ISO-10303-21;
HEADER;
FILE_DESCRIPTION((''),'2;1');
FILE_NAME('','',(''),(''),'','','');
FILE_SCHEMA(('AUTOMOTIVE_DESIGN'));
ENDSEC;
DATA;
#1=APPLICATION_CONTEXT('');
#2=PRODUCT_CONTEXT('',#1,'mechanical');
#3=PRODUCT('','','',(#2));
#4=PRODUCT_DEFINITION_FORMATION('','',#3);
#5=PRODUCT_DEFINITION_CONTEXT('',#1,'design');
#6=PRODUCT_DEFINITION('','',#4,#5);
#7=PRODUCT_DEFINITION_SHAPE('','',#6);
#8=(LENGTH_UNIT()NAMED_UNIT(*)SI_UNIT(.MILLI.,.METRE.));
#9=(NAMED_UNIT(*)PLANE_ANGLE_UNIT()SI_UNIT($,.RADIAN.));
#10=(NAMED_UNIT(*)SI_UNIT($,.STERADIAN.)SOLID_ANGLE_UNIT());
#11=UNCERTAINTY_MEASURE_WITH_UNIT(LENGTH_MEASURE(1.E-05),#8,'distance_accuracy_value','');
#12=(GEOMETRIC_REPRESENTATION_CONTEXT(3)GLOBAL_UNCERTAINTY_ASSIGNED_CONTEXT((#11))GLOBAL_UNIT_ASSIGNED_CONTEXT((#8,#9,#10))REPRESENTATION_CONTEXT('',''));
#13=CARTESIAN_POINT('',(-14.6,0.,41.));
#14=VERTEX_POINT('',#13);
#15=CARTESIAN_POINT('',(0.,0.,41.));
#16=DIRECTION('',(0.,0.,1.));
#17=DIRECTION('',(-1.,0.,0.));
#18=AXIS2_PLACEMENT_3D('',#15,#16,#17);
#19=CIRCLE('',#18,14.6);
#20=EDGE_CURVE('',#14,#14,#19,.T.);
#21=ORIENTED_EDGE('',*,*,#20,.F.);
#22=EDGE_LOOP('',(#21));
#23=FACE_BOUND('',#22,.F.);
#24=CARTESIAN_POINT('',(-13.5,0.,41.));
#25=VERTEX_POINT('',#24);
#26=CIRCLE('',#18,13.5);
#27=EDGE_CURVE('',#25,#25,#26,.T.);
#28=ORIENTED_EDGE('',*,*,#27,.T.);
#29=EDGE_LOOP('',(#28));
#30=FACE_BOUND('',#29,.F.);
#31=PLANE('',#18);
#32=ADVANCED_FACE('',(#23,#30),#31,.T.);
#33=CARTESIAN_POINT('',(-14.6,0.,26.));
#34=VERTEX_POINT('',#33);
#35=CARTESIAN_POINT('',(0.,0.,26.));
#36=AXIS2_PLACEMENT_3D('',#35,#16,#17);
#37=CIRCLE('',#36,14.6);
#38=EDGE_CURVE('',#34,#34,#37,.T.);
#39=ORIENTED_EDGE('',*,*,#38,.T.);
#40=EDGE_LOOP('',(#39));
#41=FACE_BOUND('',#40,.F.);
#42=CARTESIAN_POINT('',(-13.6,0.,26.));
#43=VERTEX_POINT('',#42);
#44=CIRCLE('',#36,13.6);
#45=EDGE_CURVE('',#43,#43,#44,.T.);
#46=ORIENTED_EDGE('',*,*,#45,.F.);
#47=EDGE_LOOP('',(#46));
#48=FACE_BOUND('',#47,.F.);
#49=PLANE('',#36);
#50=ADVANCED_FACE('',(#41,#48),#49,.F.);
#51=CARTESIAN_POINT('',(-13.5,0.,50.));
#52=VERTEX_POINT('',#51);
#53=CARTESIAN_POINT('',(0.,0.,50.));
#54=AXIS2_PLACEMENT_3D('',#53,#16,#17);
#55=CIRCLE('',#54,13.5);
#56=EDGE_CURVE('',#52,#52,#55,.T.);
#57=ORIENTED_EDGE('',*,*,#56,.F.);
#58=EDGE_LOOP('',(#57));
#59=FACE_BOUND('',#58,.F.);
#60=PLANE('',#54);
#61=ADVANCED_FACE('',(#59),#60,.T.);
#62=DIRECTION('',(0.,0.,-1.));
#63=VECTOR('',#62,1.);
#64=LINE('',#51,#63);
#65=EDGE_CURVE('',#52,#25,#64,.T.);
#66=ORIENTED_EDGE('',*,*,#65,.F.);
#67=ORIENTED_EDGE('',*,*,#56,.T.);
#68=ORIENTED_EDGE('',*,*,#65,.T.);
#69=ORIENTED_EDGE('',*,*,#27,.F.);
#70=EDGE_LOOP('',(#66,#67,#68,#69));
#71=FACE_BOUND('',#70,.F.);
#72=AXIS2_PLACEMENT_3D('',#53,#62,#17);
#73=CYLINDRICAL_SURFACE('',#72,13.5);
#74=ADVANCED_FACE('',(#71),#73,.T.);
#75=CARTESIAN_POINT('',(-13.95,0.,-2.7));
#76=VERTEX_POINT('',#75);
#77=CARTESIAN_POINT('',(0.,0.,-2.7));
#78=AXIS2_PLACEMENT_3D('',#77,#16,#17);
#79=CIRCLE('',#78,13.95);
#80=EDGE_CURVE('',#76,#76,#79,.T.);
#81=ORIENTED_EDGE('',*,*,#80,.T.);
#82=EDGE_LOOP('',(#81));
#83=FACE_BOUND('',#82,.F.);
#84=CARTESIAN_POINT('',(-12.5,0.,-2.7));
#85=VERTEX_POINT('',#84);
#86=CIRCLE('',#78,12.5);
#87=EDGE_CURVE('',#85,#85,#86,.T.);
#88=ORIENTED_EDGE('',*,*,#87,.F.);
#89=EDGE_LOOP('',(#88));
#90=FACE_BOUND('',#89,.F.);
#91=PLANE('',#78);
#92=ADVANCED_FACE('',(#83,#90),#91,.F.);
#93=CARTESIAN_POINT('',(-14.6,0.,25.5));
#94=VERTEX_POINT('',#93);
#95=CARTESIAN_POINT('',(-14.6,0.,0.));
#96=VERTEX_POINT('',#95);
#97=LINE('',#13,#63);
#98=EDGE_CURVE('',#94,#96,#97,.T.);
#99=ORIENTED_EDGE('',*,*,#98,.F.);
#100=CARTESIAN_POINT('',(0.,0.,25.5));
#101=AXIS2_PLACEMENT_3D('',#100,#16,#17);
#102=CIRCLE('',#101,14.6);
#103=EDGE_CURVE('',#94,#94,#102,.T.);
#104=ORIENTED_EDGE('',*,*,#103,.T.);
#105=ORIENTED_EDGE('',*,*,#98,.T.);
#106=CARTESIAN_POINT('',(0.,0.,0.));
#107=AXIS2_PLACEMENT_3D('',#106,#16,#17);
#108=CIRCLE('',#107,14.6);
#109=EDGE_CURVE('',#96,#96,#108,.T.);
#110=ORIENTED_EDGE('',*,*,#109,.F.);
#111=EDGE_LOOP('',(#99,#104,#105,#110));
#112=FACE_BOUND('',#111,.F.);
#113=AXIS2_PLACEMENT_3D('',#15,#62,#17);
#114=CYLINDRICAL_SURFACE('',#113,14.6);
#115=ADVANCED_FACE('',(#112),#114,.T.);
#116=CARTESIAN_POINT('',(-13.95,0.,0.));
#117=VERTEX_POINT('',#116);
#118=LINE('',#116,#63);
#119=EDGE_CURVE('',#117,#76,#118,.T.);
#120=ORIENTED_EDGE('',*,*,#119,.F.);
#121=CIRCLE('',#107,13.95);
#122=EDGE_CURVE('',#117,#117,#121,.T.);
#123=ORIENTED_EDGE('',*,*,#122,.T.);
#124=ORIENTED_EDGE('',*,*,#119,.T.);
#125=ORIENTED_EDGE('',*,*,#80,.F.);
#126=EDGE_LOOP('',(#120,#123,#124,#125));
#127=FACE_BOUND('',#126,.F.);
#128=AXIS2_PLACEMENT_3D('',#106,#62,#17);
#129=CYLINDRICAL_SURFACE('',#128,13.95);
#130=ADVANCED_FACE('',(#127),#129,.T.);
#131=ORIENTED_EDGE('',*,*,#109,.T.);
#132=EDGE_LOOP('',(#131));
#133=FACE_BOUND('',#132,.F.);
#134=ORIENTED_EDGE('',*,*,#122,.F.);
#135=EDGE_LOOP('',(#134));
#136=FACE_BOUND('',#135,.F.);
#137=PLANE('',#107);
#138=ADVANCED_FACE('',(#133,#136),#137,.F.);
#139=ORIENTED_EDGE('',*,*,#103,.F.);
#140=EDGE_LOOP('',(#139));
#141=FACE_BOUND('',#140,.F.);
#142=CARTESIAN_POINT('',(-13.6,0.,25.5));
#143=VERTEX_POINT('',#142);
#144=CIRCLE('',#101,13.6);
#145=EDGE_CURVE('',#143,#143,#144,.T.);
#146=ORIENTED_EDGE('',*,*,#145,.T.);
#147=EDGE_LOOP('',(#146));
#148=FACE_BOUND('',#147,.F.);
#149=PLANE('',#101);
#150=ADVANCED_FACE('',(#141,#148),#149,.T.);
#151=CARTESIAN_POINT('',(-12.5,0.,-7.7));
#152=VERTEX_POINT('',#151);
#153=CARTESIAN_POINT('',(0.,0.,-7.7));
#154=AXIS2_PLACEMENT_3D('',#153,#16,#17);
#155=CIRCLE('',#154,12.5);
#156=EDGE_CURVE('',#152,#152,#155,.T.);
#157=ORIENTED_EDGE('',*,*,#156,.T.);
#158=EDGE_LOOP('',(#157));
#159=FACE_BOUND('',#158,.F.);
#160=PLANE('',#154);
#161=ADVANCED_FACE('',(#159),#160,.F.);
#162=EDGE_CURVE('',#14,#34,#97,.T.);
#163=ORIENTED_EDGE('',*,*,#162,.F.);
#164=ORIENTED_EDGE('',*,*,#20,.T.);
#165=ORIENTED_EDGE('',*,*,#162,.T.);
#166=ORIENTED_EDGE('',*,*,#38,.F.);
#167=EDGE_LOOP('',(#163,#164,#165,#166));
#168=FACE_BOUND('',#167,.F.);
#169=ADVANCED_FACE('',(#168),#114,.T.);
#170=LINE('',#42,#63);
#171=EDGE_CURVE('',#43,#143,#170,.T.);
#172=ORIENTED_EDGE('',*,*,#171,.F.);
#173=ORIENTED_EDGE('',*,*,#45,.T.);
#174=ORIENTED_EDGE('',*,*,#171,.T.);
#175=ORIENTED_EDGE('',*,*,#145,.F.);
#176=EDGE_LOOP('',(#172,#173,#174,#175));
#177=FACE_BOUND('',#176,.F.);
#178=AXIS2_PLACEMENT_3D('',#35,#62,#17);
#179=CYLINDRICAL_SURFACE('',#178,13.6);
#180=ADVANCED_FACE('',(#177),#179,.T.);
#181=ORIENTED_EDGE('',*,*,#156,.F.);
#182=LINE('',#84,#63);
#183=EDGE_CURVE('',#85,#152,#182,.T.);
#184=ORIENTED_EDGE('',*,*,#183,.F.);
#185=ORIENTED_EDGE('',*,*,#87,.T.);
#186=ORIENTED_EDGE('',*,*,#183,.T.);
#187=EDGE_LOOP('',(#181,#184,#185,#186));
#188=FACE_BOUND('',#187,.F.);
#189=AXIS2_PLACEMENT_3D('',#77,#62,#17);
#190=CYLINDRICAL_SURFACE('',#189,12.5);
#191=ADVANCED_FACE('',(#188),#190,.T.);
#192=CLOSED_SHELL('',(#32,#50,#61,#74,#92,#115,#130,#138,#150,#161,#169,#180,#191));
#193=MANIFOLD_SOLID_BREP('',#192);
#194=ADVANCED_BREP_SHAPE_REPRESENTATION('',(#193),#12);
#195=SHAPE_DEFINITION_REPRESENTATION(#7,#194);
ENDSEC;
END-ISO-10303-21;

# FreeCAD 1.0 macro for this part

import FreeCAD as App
import Part
import Sketcher


def add_polygon(sketch, points):
    """Adds a closed chain of lines whose ends are joined by coincident constraints."""
    first, n = sketch.GeometryCount, len(points)
    for a, b in zip(points, points[1:] + points[:1]):
        sketch.addGeometry(Part.LineSegment(App.Vector(*a, 0), App.Vector(*b, 0)), False)
    for i in range(n):
        sketch.addConstraint(Sketcher.Constraint("Coincident", first + i, 2, first + (i + 1) % n, 1))

doc = App.newDocument("Part")
body = doc.addObject("PartDesign::Body", "Body")

sketch1 = doc.addObject("Sketcher::SketchObject", "Sketch")
body.addObject(sketch1)
sketch1.AttachmentSupport = (doc.XZ_Plane, [""])
sketch1.MapMode = "FlatFace"
add_polygon(sketch1, [(-13.5, 50), (0, 50), (0, -7.7), (-12.5, -7.7), (-12.5, -2.7), (-13.9, -2.7), (-13.9, 0), (-14.6, 0), (-14.6, 25.5), (-13.6, 25.5), (-13.6, 26), (-14.6, 26), (-14.6, 41), (-13.5, 41)])
sketch1.addConstraint(Sketcher.Constraint("Horizontal", 0))
sketch1.addConstraint(Sketcher.Constraint("Vertical", 1))
sketch1.addConstraint(Sketcher.Constraint("Horizontal", 2))
sketch1.addConstraint(Sketcher.Constraint("Vertical", 3))
sketch1.addConstraint(Sketcher.Constraint("Horizontal", 4))
sketch1.addConstraint(Sketcher.Constraint("Vertical", 5))
sketch1.addConstraint(Sketcher.Constraint("Horizontal", 6))
sketch1.addConstraint(Sketcher.Constraint("Vertical", 7))
sketch1.addConstraint(Sketcher.Constraint("Horizontal", 8))
sketch1.addConstraint(Sketcher.Constraint("Vertical", 9))
sketch1.addConstraint(Sketcher.Constraint("Horizontal", 10))
sketch1.addConstraint(Sketcher.Constraint("Vertical", 11))
sketch1.addConstraint(Sketcher.Constraint("Horizontal", 12))
sketch1.addConstraint(Sketcher.Constraint("Vertical", 13))
sketch1.addConstraint(Sketcher.Constraint("PointOnObject", 0, 2, -2))
sketch1.addConstraint(Sketcher.Constraint("PointOnObject", 5, 2, -1))
sketch1.addConstraint(Sketcher.Constraint("Vertical", 7, 2, 10, 2))
sketch1.addConstraint(Sketcher.Constraint("DistanceX", 8, 1, 8, 2, 1.0))
sketch1.addConstraint(Sketcher.Constraint("DistanceY", 3, 1, 3, 2, 5.0))
sketch1.addConstraint(Sketcher.Constraint("DistanceY", 11, 1, 11, 2, 15.0))
sketch1.addConstraint(Sketcher.Constraint("DistanceY", 13, 1, 13, 2, 9.0))
sketch1.addConstraint(Sketcher.Constraint("DistanceX", 0, 1, 0, 2, 13.5))
sketch1.addConstraint(Sketcher.Constraint("DistanceX", 2, 2, 2, 1, 12.5))
sketch1.addConstraint(Sketcher.Constraint("DistanceX", 12, 1, 12, 2, 1.1))
sketch1.addConstraint(Sketcher.Constraint("DistanceY", 5, 1, 5, 2, 2.7))
sketch1.addConstraint(Sketcher.Constraint("DistanceY", 9, 1, 9, 2, 0.5))
sketch1.addConstraint(Sketcher.Constraint("DistanceX", 4, 2, -1, 1, 13.95))
sketch1.addConstraint(Sketcher.Constraint("DistanceY", 1, 2, 1, 1, 57.7))
revolution = doc.addObject("PartDesign::Revolution", "Revolution")
body.addObject(revolution)
revolution.Profile = sketch1
revolution.ReferenceAxis = (sketch1, ["V_Axis"])
revolution.Angle = 360

doc.recompute()
